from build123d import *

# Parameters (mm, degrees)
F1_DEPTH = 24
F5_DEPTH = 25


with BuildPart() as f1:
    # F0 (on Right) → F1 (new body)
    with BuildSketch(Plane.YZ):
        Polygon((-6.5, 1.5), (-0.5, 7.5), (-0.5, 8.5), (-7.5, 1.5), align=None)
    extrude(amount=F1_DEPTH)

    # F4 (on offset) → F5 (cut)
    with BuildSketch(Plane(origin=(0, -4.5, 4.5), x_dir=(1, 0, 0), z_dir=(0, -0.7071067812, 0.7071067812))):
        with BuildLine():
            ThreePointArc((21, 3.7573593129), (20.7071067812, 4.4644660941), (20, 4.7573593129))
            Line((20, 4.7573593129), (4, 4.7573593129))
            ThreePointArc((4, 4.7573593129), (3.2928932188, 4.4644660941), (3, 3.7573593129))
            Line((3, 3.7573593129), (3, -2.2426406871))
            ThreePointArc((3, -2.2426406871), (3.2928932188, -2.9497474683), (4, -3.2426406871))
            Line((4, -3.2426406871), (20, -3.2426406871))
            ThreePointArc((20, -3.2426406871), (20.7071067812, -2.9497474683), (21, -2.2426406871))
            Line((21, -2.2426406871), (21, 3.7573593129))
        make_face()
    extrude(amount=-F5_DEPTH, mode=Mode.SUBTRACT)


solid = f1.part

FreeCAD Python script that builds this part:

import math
import FreeCAD as App
import Part
import Sketcher
from FreeCAD import Vector
Q = App.Units.Quantity


def add_polygon(sketch, points):
    """Adds a closed chain of lines whose ends are joined by coincident constraints."""
    first, n = sketch.GeometryCount, len(points)
    for a, b in zip(points, points[1:] + points[:1]):
        sketch.addGeometry(Part.LineSegment(App.Vector(*a, 0), App.Vector(*b, 0)), False)
    for i in range(n):
        sketch.addConstraint(Sketcher.Constraint("Coincident", first + i, 2, first + (i + 1) % n, 1))

doc = App.newDocument("Part")
params = doc.addObject("Spreadsheet::Sheet", "Params")
for row, (alias, value) in enumerate([
    ("sketch1_width", "1 mm"),
    ("pad1_length", "24 mm"),
    ("sketch2_radius", "1 mm"),
    ("sketch2_width", "16 mm"),
    ("sketch2_height", "6 mm"),
    ("pocket1_length", "25 mm"),
], start=1):
    params.set(f"A{row}", alias)
    params.set(f"B{row}", "=" + value)
    params.setAlias(f"B{row}", alias)

body = doc.addObject("PartDesign::Body", "Body")

# Sketch on YZ plane
sketch1 = body.newObject("Sketcher::SketchObject", "Sketch")
sketch1.AttachmentSupport = (doc.getObject("YZ_Plane"), [""])
sketch1.MapMode = "FlatFace"
add_polygon(sketch1, [(-6.5, 1.5), (-0.5, 7.5), (-0.5, 8.5), (-7.5, 1.5)])  # lines 0-3
sketch1.addConstraint([
    Sketcher.Constraint("Vertical", 1),
    Sketcher.Constraint("Horizontal", 3),
    Sketcher.Constraint("Parallel", 0, 2),
    Sketcher.Constraint("Equal", 3, 1),
    Sketcher.Constraint("DistanceX", 3, 1, 3, 2, Q("1 mm")),
    Sketcher.Constraint("DistanceX", 2, 2, 0, 2, Q("7 mm")),
    Sketcher.Constraint("DistanceX", 0, 2, -1, 1, Q("0.5 mm")),
    Sketcher.Constraint("DistanceY", -1, 1, 0, 2, Q("7.5 mm")),
])
sketch1.setExpression("Constraints[8]", "Params.sketch1_width")
pad1 = body.newObject("PartDesign::Pad", "Pad")
pad1.Profile = sketch1
pad1.setExpression("Length", "Params.pad1_length")

# Sketch on an angled plane
sketch2 = body.newObject("Sketcher::SketchObject", "Sketch001")
sketch2.Placement = App.Placement(Vector(0, -4.5, 4.5), App.Rotation(Vector(1, 0, 0), Vector(0, 0.707106781, 0.707106781), Vector(0, -0.707106781, 0.707106781), "ZXY"))
sketch2.addGeometry([
    Part.ArcOfCircle(Part.Circle(Vector(20, 3.8, 0), Vector(0, 0, 1), 1), math.radians(0), math.radians(90)),  # 0
    Part.LineSegment(Vector(20, 4.8, 0), Vector(4, 4.8, 0)),  # 1
    Part.ArcOfCircle(Part.Circle(Vector(4, 3.8, 0), Vector(0, 0, 1), 1), math.radians(90), math.radians(180)),  # 2
    Part.LineSegment(Vector(3, 3.8, 0), Vector(3, -2.2, 0)),  # 3
    Part.ArcOfCircle(Part.Circle(Vector(4, -2.2, 0), Vector(0, 0, 1), 1), math.radians(180), math.radians(270)),  # 4
    Part.LineSegment(Vector(4, -3.2, 0), Vector(20, -3.2, 0)),  # 5
    Part.ArcOfCircle(Part.Circle(Vector(20, -2.2, 0), Vector(0, 0, 1), 1), math.radians(-90), math.radians(0)),  # 6
    Part.LineSegment(Vector(21, -2.2, 0), Vector(21, 3.8, 0)),  # 7
], False)
sketch2.addConstraint([
    Sketcher.Constraint("Tangent", 0, 2, 1, 1),
    Sketcher.Constraint("Tangent", 1, 2, 2, 1),
    Sketcher.Constraint("Tangent", 2, 2, 3, 1),
    Sketcher.Constraint("Tangent", 3, 2, 4, 1),
    Sketcher.Constraint("Tangent", 4, 2, 5, 1),
    Sketcher.Constraint("Tangent", 5, 2, 6, 1),
    Sketcher.Constraint("Tangent", 6, 2, 7, 1),
    Sketcher.Constraint("Tangent", 7, 2, 0, 1),
    Sketcher.Constraint("Horizontal", 1),
    Sketcher.Constraint("Vertical", 3),
    Sketcher.Constraint("Horizontal", 5),
    Sketcher.Constraint("Vertical", 7),
    Sketcher.Constraint("Equal", 0, 2),
    Sketcher.Constraint("Equal", 2, 4),
    Sketcher.Constraint("Equal", 4, 6),
    Sketcher.Constraint("Radius", 0, Q("1 mm")),
    Sketcher.Constraint("DistanceX", 1, 2, 1, 1, Q("16 mm")),
    Sketcher.Constraint("DistanceY", 3, 2, 3, 1, Q("6 mm")),
    Sketcher.Constraint("DistanceX", -1, 1, 0, 3, Q("20 mm")),
    Sketcher.Constraint("DistanceY", -1, 1, 0, 3, Q("3.757359 mm")),
])
sketch2.setExpression("Constraints[15]", "Params.sketch2_radius")
sketch2.setExpression("Constraints[16]", "Params.sketch2_width")
sketch2.setExpression("Constraints[17]", "Params.sketch2_height")
pocket1 = body.newObject("PartDesign::Pocket", "Pocket")
pocket1.Profile = sketch2
pocket1.setExpression("Length", "Params.pocket1_length")

doc.recompute()
